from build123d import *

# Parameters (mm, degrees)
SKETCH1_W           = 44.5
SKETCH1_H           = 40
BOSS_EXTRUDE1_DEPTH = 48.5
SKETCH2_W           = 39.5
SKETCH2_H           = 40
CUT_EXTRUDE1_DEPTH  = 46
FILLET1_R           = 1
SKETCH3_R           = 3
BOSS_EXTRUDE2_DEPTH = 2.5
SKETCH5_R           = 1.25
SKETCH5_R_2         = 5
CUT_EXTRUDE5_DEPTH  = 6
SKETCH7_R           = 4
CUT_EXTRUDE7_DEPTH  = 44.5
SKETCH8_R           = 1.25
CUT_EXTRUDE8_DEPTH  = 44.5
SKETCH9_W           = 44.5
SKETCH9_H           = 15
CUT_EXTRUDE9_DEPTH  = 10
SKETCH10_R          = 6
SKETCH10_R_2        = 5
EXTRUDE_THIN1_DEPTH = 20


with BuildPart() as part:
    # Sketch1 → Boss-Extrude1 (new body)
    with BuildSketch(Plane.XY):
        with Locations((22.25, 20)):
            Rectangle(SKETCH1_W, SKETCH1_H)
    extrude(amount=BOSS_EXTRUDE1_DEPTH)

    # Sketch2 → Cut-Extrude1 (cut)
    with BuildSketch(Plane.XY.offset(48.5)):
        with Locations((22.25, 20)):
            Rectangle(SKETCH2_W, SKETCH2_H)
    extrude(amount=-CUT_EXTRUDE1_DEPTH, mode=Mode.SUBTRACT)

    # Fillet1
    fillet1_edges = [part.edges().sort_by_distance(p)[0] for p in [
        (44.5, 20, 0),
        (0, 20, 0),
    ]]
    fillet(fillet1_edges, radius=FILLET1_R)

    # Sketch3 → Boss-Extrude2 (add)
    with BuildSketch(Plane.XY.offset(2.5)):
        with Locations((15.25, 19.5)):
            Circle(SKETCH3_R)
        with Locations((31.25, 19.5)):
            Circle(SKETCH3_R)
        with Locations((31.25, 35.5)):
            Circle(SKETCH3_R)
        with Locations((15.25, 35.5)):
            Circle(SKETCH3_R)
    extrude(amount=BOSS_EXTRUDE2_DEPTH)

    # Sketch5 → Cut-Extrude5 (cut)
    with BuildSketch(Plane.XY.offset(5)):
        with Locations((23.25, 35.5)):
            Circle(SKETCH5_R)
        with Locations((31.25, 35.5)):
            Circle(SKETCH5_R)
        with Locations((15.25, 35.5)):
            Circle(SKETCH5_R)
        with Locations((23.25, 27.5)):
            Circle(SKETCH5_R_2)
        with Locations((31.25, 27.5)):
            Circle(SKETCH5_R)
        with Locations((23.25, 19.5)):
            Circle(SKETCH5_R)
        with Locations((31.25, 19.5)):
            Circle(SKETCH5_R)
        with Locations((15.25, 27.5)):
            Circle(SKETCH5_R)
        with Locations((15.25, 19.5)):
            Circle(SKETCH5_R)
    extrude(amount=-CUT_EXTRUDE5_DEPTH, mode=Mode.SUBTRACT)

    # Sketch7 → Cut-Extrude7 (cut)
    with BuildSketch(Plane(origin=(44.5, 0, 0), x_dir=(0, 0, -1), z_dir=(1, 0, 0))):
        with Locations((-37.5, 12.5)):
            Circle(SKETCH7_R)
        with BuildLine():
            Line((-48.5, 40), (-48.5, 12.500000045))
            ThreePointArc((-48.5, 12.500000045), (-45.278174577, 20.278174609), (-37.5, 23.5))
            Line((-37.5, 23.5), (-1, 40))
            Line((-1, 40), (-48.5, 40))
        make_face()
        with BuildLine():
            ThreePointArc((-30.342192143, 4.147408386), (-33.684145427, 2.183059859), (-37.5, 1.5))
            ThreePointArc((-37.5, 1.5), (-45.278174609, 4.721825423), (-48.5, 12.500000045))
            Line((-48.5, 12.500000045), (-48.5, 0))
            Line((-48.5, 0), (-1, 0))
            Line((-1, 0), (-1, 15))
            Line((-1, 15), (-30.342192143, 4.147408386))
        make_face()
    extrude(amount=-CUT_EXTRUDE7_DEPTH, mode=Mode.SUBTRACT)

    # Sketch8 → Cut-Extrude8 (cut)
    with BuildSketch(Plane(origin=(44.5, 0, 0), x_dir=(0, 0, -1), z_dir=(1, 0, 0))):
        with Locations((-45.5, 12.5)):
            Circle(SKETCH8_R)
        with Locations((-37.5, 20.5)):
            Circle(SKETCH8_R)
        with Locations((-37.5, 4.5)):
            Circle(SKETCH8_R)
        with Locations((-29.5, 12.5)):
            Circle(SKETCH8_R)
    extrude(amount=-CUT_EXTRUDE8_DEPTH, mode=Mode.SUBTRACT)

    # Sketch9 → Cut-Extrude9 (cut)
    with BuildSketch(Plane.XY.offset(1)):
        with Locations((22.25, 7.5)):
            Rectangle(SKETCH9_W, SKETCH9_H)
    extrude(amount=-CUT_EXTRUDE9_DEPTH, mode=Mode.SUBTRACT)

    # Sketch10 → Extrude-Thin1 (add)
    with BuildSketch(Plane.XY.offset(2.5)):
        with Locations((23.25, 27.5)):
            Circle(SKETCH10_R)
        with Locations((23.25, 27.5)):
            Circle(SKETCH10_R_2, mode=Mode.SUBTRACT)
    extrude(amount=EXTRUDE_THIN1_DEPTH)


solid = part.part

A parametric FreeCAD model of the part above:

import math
import FreeCAD as App
import Part
import Sketcher


def edges_at(feature, points):
    """Names of the edges that pass closest to the given points."""
    edges = feature.Shape.Edges
    near = lambda p: min(range(len(edges)), key=lambda i: edges[i].distToShape(Part.Vertex(*p))[0])
    return sorted({f"Edge{near(p) + 1}" for p in points})

doc = App.newDocument("Part")
body = doc.addObject("PartDesign::Body", "Body")

sketch1 = body.newObject("Sketcher::SketchObject", "Sketch")
sketch1.AttachmentSupport = (doc.getObject("XY_Plane"), [""])
sketch1.MapMode = "FlatFace"
sketch1.addGeometry(Part.LineSegment(App.Vector(0, 40, 0), App.Vector(0, 0, 0)), False)
sketch1.addGeometry(Part.LineSegment(App.Vector(0, 0, 0), App.Vector(44, 0, 0)), False)
sketch1.addGeometry(Part.LineSegment(App.Vector(44, 0, 0), App.Vector(44, 40, 0)), False)
sketch1.addGeometry(Part.LineSegment(App.Vector(44, 40, 0), App.Vector(0, 40, 0)), False)
sketch1.addConstraint(Sketcher.Constraint("Coincident", 0, 2, 1, 1))
sketch1.addConstraint(Sketcher.Constraint("Coincident", 1, 2, 2, 1))
sketch1.addConstraint(Sketcher.Constraint("Coincident", 2, 2, 3, 1))
sketch1.addConstraint(Sketcher.Constraint("Coincident", 3, 2, 0, 1))
sketch1.addConstraint(Sketcher.Constraint("Vertical", 0))
sketch1.addConstraint(Sketcher.Constraint("Horizontal", 1))
sketch1.addConstraint(Sketcher.Constraint("Vertical", 2))
sketch1.addConstraint(Sketcher.Constraint("Horizontal", 3))
sketch1.addConstraint(Sketcher.Constraint("Coincident", 0, 2, -1, 1))
sketch1.addConstraint(Sketcher.Constraint("DistanceY", 0, 2, 0, 1, 40.0))
sketch1.addConstraint(Sketcher.Constraint("DistanceX", 1, 1, 1, 2, 44.5))
pad1 = body.newObject("PartDesign::Pad", "Pad")
pad1.Profile = sketch1
pad1.Length = 48.5

sketch2 = body.newObject("Sketcher::SketchObject", "Sketch001")
sketch2.AttachmentSupport = (doc.getObject("XY_Plane"), [""])
sketch2.MapMode = "FlatFace"
sketch2.AttachmentOffset = App.Placement(App.Vector(0, 0, 48.5), App.Rotation())
sketch2.addGeometry(Part.LineSegment(App.Vector(2, 40, 0), App.Vector(2, 0, 0)), False)
sketch2.addGeometry(Part.LineSegment(App.Vector(2, 0, 0), App.Vector(42, 0, 0)), False)
sketch2.addGeometry(Part.LineSegment(App.Vector(42, 0, 0), App.Vector(42, 40, 0)), False)
sketch2.addGeometry(Part.LineSegment(App.Vector(42, 40, 0), App.Vector(2, 40, 0)), False)
sketch2.addConstraint(Sketcher.Constraint("Coincident", 0, 2, 1, 1))
sketch2.addConstraint(Sketcher.Constraint("Coincident", 1, 2, 2, 1))
sketch2.addConstraint(Sketcher.Constraint("Coincident", 2, 2, 3, 1))
sketch2.addConstraint(Sketcher.Constraint("Coincident", 3, 2, 0, 1))
sketch2.addConstraint(Sketcher.Constraint("Vertical", 0))
sketch2.addConstraint(Sketcher.Constraint("Horizontal", 1))
sketch2.addConstraint(Sketcher.Constraint("Vertical", 2))
sketch2.addConstraint(Sketcher.Constraint("Horizontal", 3))
sketch2.addConstraint(Sketcher.Constraint("PointOnObject", 0, 2, -1))
sketch2.addConstraint(Sketcher.Constraint("DistanceY", 0, 2, 0, 1, 40.0))
sketch2.addConstraint(Sketcher.Constraint("DistanceX", 1, 1, 1, 2, 39.5))
sketch2.addConstraint(Sketcher.Constraint("DistanceX", -1, 1, 1, 2, 42.0))
pocket1 = body.newObject("PartDesign::Pocket", "Pocket")
pocket1.Profile = sketch2
pocket1.Length = 46
doc.recompute()

fillet = body.newObject("PartDesign::Fillet", "Fillet")
fillet.Base = (pocket1, edges_at(pocket1, [(44.5, 20, 0), (0, 20, 0)]))
fillet.Radius = 1

sketch3 = body.newObject("Sketcher::SketchObject", "Sketch002")
sketch3.AttachmentSupport = (doc.getObject("XY_Plane"), [""])
sketch3.MapMode = "FlatFace"
sketch3.AttachmentOffset = App.Placement(App.Vector(0, 0, 2.5), App.Rotation())
sketch3.addGeometry(Part.Circle(App.Vector(15.2, 19.5, 0), App.Vector(0, 0, 1), 3), False)
sketch3.addGeometry(Part.Circle(App.Vector(31.2, 19.5, 0), App.Vector(0, 0, 1), 3), False)
sketch3.addGeometry(Part.Circle(App.Vector(31.2, 35.5, 0), App.Vector(0, 0, 1), 3), False)
sketch3.addGeometry(Part.Circle(App.Vector(15.2, 35.5, 0), App.Vector(0, 0, 1), 3), False)
sketch3.addConstraint(Sketcher.Constraint("Equal", 0, 1))
sketch3.addConstraint(Sketcher.Constraint("Equal", 1, 2))
sketch3.addConstraint(Sketcher.Constraint("Equal", 2, 3))
sketch3.addConstraint(Sketcher.Constraint("Horizontal", 0, 3, 1, 3))
sketch3.addConstraint(Sketcher.Constraint("Horizontal", 2, 3, 3, 3))
sketch3.addConstraint(Sketcher.Constraint("Vertical", 1, 3, 2, 3))
sketch3.addConstraint(Sketcher.Constraint("Vertical", 0, 3, 3, 3))
sketch3.addConstraint(Sketcher.Constraint("Diameter", 0, 6.0))
sketch3.addConstraint(Sketcher.Constraint("DistanceX", 0, 3, 1, 3, 16.0))
sketch3.addConstraint(Sketcher.Constraint("DistanceY", 1, 3, 2, 3, 16.0))
sketch3.addConstraint(Sketcher.Constraint("DistanceY", -1, 1, 0, 3, 19.5))
sketch3.addConstraint(Sketcher.Constraint("DistanceX", -1, 1, 0, 3, 15.25))
pad2 = body.newObject("PartDesign::Pad", "Pad001")
pad2.Profile = sketch3
pad2.Length = 2.5

sketch4 = body.newObject("Sketcher::SketchObject", "Sketch003")
sketch4.AttachmentSupport = (doc.getObject("XY_Plane"), [""])
sketch4.MapMode = "FlatFace"
sketch4.AttachmentOffset = App.Placement(App.Vector(0, 0, 5), App.Rotation())
sketch4.addGeometry(Part.Circle(App.Vector(23.2, 35.5, 0), App.Vector(0, 0, 1), 1.2), False)
sketch4.addGeometry(Part.Circle(App.Vector(31.2, 35.5, 0), App.Vector(0, 0, 1), 1.2), False)
sketch4.addGeometry(Part.Circle(App.Vector(15.2, 35.5, 0), App.Vector(0, 0, 1), 1.2), False)
sketch4.addGeometry(Part.Circle(App.Vector(23.2, 27.5, 0), App.Vector(0, 0, 1), 5), False)
sketch4.addGeometry(Part.Circle(App.Vector(31.2, 27.5, 0), App.Vector(0, 0, 1), 1.2), False)
sketch4.addGeometry(Part.Circle(App.Vector(23.2, 19.5, 0), App.Vector(0, 0, 1), 1.2), False)
sketch4.addGeometry(Part.Circle(App.Vector(31.2, 19.5, 0), App.Vector(0, 0, 1), 1.2), False)
sketch4.addGeometry(Part.Circle(App.Vector(15.2, 27.5, 0), App.Vector(0, 0, 1), 1.2), False)
sketch4.addGeometry(Part.Circle(App.Vector(15.2, 19.5, 0), App.Vector(0, 0, 1), 1.2), False)
sketch4.addConstraint(Sketcher.Constraint("Equal", 0, 1))
sketch4.addConstraint(Sketcher.Constraint("Equal", 1, 2))
sketch4.addConstraint(Sketcher.Constraint("Equal", 2, 4))
sketch4.addConstraint(Sketcher.Constraint("Equal", 4, 5))
sketch4.addConstraint(Sketcher.Constraint("Equal", 5, 6))
sketch4.addConstraint(Sketcher.Constraint("Equal", 6, 7))
sketch4.addConstraint(Sketcher.Constraint("Equal", 7, 8))
sketch4.addConstraint(Sketcher.Constraint("Horizontal", 0, 3, 1, 3))
sketch4.addConstraint(Sketcher.Constraint("Horizontal", 1, 3, 2, 3))
sketch4.addConstraint(Sketcher.Constraint("Horizontal", 3, 3, 4, 3))
sketch4.addConstraint(Sketcher.Constraint("Horizontal", 5, 3, 6, 3))
sketch4.addConstraint(Sketcher.Constraint("Horizontal", 4, 3, 7, 3))
sketch4.addConstraint(Sketcher.Constraint("Horizontal", 6, 3, 8, 3))
sketch4.addConstraint(Sketcher.Constraint("Vertical", 0, 3, 3, 3))
sketch4.addConstraint(Sketcher.Constraint("Vertical", 1, 3, 4, 3))
sketch4.addConstraint(Sketcher.Constraint("Vertical", 3, 3, 5, 3))
sketch4.addConstraint(Sketcher.Constraint("Vertical", 4, 3, 6, 3))
sketch4.addConstraint(Sketcher.Constraint("Vertical", 2, 3, 7, 3))
sketch4.addConstraint(Sketcher.Constraint("Vertical", 7, 3, 8, 3))
sketch4.addConstraint(Sketcher.Constraint("Diameter", 3, 10.0))
sketch4.addConstraint(Sketcher.Constraint("Diameter", 0, 2.5))
sketch4.addConstraint(Sketcher.Constraint("DistanceX", 0, 3, 1, 3, 8.0))
sketch4.addConstraint(Sketcher.Constraint("DistanceX", 2, 3, 0, 3, 8.0))
sketch4.addConstraint(Sketcher.Constraint("DistanceY", 3, 3, 0, 3, 8.0))
sketch4.addConstraint(Sketcher.Constraint("DistanceY", 5, 3, 3, 3, 8.0))
sketch4.addConstraint(Sketcher.Constraint("DistanceY", -1, 1, 0, 3, 35.5))
sketch4.addConstraint(Sketcher.Constraint("DistanceX", -1, 1, 0, 3, 23.25))
pocket2 = body.newObject("PartDesign::Pocket", "Pocket001")
pocket2.Profile = sketch4
pocket2.Length = 6

sketch5 = body.newObject("Sketcher::SketchObject", "Sketch004")
sketch5.AttachmentSupport = (doc.getObject("YZ_Plane"), [""])
sketch5.MapMode = "FlatFace"
sketch5.AttachmentOffset = App.Placement(App.Vector(0, 0, 44.5), App.Rotation())
sketch5.addGeometry(Part.Circle(App.Vector(12.5, 37.5, 0), App.Vector(0, 0, 1), 4), False)
sketch5.addGeometry(Part.LineSegment(App.Vector(40, 48.5, 0), App.Vector(12.5, 48.5, 0)), False)
sketch5.addGeometry(Part.ArcOfCircle(Part.Circle(App.Vector(12.5, 37.5, 0), App.Vector(0, 0, 1), 11), math.radians(0), math.radians(90)), False)
sketch5.addGeometry(Part.LineSegment(App.Vector(23.5, 37.5, 0), App.Vector(40, 1, 0)), False)
sketch5.addGeometry(Part.LineSegment(App.Vector(40, 1, 0), App.Vector(40, 48.5, 0)), False)
sketch5.addGeometry(Part.ArcOfCircle(Part.Circle(App.Vector(12.5, 37.5, 0), App.Vector(0, 0, 1), 11), math.radians(180), math.radians(221)), False)
sketch5.addGeometry(Part.ArcOfCircle(Part.Circle(App.Vector(12.5, 37.5, 0), App.Vector(0, 0, 1), 11), math.radians(90), math.radians(180)), False)
sketch5.addGeometry(Part.LineSegment(App.Vector(12.5, 48.5, 0), App.Vector(0, 48.5, 0)), False)
sketch5.addGeometry(Part.LineSegment(App.Vector(0, 48.5, 0), App.Vector(0, 1, 0)), False)
sketch5.addGeometry(Part.LineSegment(App.Vector(0, 1, 0), App.Vector(15, 1, 0)), False)
sketch5.addGeometry(Part.LineSegment(App.Vector(15, 1, 0), App.Vector(4.1, 30.3, 0)), False)
sketch5.addConstraint(Sketcher.Constraint("Tangent", 1, 2, 2, 2))
sketch5.addConstraint(Sketcher.Constraint("Coincident", 2, 1, 3, 1))
sketch5.addConstraint(Sketcher.Constraint("Coincident", 3, 2, 4, 1))
sketch5.addConstraint(Sketcher.Constraint("Coincident", 4, 2, 1, 1))
sketch5.addConstraint(Sketcher.Constraint("Tangent", 5, 1, 6, 2))
sketch5.addConstraint(Sketcher.Constraint("Tangent", 6, 1, 7, 1))
sketch5.addConstraint(Sketcher.Constraint("Coincident", 7, 2, 8, 1))
sketch5.addConstraint(Sketcher.Constraint("Coincident", 8, 2, 9, 1))
sketch5.addConstraint(Sketcher.Constraint("Coincident", 9, 2, 10, 1))
sketch5.addConstraint(Sketcher.Constraint("Coincident", 10, 2, 5, 2))
sketch5.addConstraint(Sketcher.Constraint("Horizontal", 1))
sketch5.addConstraint(Sketcher.Constraint("Vertical", 4))
sketch5.addConstraint(Sketcher.Constraint("Horizontal", 7))
sketch5.addConstraint(Sketcher.Constraint("Vertical", 8))
sketch5.addConstraint(Sketcher.Constraint("Horizontal", 9))
sketch5.addConstraint(Sketcher.Constraint("Coincident", 2, 3, 0, 3))
sketch5.addConstraint(Sketcher.Constraint("Coincident", 5, 3, 0, 3))
sketch5.addConstraint(Sketcher.Constraint("Coincident", 6, 1, 1, 2))
sketch5.addConstraint(Sketcher.Constraint("PointOnObject", 7, 2, -2))
sketch5.addConstraint(Sketcher.Constraint("Horizontal", 6, 3, 2, 1))
sketch5.addConstraint(Sketcher.Constraint("Horizontal", 2, 1, 5, 1))
sketch5.addConstraint(Sketcher.Constraint("Horizontal", 3, 2, 8, 2))
sketch5.addConstraint(Sketcher.Constraint("Diameter", 0, 8.0))
sketch5.addConstraint(Sketcher.Constraint("Radius", 2, 11.0))
sketch5.addConstraint(Sketcher.Constraint("DistanceX", 9, 1, 9, 2, 15.0))
sketch5.addConstraint(Sketcher.Constraint("DistanceX", 1, 2, 1, 1, 27.5))
sketch5.addConstraint(Sketcher.Constraint("DistanceX", 7, 2, 7, 1, 12.5))
sketch5.addConstraint(Sketcher.Constraint("DistanceY", 4, 1, 4, 2, 47.5))
sketch5.addConstraint(Sketcher.Constraint("DistanceY", -1, 1, 3, 2, 1.0))
sketch5.addConstraint(Sketcher.Constraint("Distance", 10, 31.284868))
pocket3 = body.newObject("PartDesign::Pocket", "Pocket002")
pocket3.Profile = sketch5
pocket3.Length = 44.5

sketch6 = body.newObject("Sketcher::SketchObject", "Sketch005")
sketch6.AttachmentSupport = (doc.getObject("YZ_Plane"), [""])
sketch6.MapMode = "FlatFace"
sketch6.AttachmentOffset = App.Placement(App.Vector(0, 0, 44.5), App.Rotation())
sketch6.addGeometry(Part.Circle(App.Vector(12.5, 45.5, 0), App.Vector(0, 0, 1), 1.2), False)
sketch6.addGeometry(Part.Circle(App.Vector(20.5, 37.5, 0), App.Vector(0, 0, 1), 1.2), False)
sketch6.addGeometry(Part.Circle(App.Vector(4.5, 37.5, 0), App.Vector(0, 0, 1), 1.2), False)
sketch6.addGeometry(Part.Circle(App.Vector(12.5, 29.5, 0), App.Vector(0, 0, 1), 1.2), False)
sketch6.addConstraint(Sketcher.Constraint("Equal", 0, 1))
sketch6.addConstraint(Sketcher.Constraint("Equal", 1, 2))
sketch6.addConstraint(Sketcher.Constraint("Equal", 2, 3))
sketch6.addConstraint(Sketcher.Constraint("Horizontal", 1, 3, 2, 3))
sketch6.addConstraint(Sketcher.Constraint("Vertical", 0, 3, 3, 3))
sketch6.addConstraint(Sketcher.Constraint("Diameter", 0, 2.5))
sketch6.addConstraint(Sketcher.Constraint("DistanceX", 0, 3, 1, 3, 8.0))
sketch6.addConstraint(Sketcher.Constraint("DistanceY", 1, 3, 0, 3, 8.0))
sketch6.addConstraint(Sketcher.Constraint("DistanceX", 2, 3, 0, 3, 8.0))
sketch6.addConstraint(Sketcher.Constraint("DistanceY", 3, 3, 1, 3, 8.0))
sketch6.addConstraint(Sketcher.Constraint("DistanceX", -1, 1, 0, 3, 12.5))
sketch6.addConstraint(Sketcher.Constraint("DistanceY", -1, 1, 0, 3, 45.5))
pocket4 = body.newObject("PartDesign::Pocket", "Pocket003")
pocket4.Profile = sketch6
pocket4.Length = 44.5

sketch7 = body.newObject("Sketcher::SketchObject", "Sketch006")
sketch7.AttachmentSupport = (doc.getObject("XY_Plane"), [""])
sketch7.MapMode = "FlatFace"
sketch7.AttachmentOffset = App.Placement(App.Vector(0, 0, 1), App.Rotation())
sketch7.addGeometry(Part.LineSegment(App.Vector(0, 15, 0), App.Vector(0, 0, 0)), False)
sketch7.addGeometry(Part.LineSegment(App.Vector(0, 0, 0), App.Vector(44, 0, 0)), False)
sketch7.addGeometry(Part.LineSegment(App.Vector(44, 0, 0), App.Vector(44, 15, 0)), False)
sketch7.addGeometry(Part.LineSegment(App.Vector(44, 15, 0), App.Vector(0, 15, 0)), False)
sketch7.addConstraint(Sketcher.Constraint("Coincident", 0, 2, 1, 1))
sketch7.addConstraint(Sketcher.Constraint("Coincident", 1, 2, 2, 1))
sketch7.addConstraint(Sketcher.Constraint("Coincident", 2, 2, 3, 1))
sketch7.addConstraint(Sketcher.Constraint("Coincident", 3, 2, 0, 1))
sketch7.addConstraint(Sketcher.Constraint("Vertical", 0))
sketch7.addConstraint(Sketcher.Constraint("Horizontal", 1))
sketch7.addConstraint(Sketcher.Constraint("Vertical", 2))
sketch7.addConstraint(Sketcher.Constraint("Horizontal", 3))
sketch7.addConstraint(Sketcher.Constraint("Coincident", 0, 2, -1, 1))
sketch7.addConstraint(Sketcher.Constraint("DistanceY", 0, 2, 0, 1, 15.0))
sketch7.addConstraint(Sketcher.Constraint("DistanceX", 1, 1, 1, 2, 44.5))
pocket5 = body.newObject("PartDesign::Pocket", "Pocket004")
pocket5.Profile = sketch7
pocket5.Length = 10

sketch8 = body.newObject("Sketcher::SketchObject", "Sketch007")
sketch8.AttachmentSupport = (doc.getObject("XY_Plane"), [""])
sketch8.MapMode = "FlatFace"
sketch8.AttachmentOffset = App.Placement(App.Vector(0, 0, 2.5), App.Rotation())
sketch8.addGeometry(Part.Circle(App.Vector(23, 28, 0), App.Vector(0, 0, 1), 6), False)
sketch8.addGeometry(Part.Circle(App.Vector(23, 28, 0), App.Vector(0, 0, 1), 5), False)
sketch8.addConstraint(Sketcher.Constraint("Coincident", 1, 3, 0, 3))
sketch8.addConstraint(Sketcher.Constraint("Diameter", 0, 12.0))
sketch8.addConstraint(Sketcher.Constraint("Diameter", 1, 10.0))
sketch8.addConstraint(Sketcher.Constraint("DistanceY", -1, 1, 0, 3, 27.5))
sketch8.addConstraint(Sketcher.Constraint("DistanceX", -1, 1, 0, 3, 23.25))
pad3 = body.newObject("PartDesign::Pad", "Pad002")
pad3.Profile = sketch8
pad3.Length = 20

doc.recompute()
